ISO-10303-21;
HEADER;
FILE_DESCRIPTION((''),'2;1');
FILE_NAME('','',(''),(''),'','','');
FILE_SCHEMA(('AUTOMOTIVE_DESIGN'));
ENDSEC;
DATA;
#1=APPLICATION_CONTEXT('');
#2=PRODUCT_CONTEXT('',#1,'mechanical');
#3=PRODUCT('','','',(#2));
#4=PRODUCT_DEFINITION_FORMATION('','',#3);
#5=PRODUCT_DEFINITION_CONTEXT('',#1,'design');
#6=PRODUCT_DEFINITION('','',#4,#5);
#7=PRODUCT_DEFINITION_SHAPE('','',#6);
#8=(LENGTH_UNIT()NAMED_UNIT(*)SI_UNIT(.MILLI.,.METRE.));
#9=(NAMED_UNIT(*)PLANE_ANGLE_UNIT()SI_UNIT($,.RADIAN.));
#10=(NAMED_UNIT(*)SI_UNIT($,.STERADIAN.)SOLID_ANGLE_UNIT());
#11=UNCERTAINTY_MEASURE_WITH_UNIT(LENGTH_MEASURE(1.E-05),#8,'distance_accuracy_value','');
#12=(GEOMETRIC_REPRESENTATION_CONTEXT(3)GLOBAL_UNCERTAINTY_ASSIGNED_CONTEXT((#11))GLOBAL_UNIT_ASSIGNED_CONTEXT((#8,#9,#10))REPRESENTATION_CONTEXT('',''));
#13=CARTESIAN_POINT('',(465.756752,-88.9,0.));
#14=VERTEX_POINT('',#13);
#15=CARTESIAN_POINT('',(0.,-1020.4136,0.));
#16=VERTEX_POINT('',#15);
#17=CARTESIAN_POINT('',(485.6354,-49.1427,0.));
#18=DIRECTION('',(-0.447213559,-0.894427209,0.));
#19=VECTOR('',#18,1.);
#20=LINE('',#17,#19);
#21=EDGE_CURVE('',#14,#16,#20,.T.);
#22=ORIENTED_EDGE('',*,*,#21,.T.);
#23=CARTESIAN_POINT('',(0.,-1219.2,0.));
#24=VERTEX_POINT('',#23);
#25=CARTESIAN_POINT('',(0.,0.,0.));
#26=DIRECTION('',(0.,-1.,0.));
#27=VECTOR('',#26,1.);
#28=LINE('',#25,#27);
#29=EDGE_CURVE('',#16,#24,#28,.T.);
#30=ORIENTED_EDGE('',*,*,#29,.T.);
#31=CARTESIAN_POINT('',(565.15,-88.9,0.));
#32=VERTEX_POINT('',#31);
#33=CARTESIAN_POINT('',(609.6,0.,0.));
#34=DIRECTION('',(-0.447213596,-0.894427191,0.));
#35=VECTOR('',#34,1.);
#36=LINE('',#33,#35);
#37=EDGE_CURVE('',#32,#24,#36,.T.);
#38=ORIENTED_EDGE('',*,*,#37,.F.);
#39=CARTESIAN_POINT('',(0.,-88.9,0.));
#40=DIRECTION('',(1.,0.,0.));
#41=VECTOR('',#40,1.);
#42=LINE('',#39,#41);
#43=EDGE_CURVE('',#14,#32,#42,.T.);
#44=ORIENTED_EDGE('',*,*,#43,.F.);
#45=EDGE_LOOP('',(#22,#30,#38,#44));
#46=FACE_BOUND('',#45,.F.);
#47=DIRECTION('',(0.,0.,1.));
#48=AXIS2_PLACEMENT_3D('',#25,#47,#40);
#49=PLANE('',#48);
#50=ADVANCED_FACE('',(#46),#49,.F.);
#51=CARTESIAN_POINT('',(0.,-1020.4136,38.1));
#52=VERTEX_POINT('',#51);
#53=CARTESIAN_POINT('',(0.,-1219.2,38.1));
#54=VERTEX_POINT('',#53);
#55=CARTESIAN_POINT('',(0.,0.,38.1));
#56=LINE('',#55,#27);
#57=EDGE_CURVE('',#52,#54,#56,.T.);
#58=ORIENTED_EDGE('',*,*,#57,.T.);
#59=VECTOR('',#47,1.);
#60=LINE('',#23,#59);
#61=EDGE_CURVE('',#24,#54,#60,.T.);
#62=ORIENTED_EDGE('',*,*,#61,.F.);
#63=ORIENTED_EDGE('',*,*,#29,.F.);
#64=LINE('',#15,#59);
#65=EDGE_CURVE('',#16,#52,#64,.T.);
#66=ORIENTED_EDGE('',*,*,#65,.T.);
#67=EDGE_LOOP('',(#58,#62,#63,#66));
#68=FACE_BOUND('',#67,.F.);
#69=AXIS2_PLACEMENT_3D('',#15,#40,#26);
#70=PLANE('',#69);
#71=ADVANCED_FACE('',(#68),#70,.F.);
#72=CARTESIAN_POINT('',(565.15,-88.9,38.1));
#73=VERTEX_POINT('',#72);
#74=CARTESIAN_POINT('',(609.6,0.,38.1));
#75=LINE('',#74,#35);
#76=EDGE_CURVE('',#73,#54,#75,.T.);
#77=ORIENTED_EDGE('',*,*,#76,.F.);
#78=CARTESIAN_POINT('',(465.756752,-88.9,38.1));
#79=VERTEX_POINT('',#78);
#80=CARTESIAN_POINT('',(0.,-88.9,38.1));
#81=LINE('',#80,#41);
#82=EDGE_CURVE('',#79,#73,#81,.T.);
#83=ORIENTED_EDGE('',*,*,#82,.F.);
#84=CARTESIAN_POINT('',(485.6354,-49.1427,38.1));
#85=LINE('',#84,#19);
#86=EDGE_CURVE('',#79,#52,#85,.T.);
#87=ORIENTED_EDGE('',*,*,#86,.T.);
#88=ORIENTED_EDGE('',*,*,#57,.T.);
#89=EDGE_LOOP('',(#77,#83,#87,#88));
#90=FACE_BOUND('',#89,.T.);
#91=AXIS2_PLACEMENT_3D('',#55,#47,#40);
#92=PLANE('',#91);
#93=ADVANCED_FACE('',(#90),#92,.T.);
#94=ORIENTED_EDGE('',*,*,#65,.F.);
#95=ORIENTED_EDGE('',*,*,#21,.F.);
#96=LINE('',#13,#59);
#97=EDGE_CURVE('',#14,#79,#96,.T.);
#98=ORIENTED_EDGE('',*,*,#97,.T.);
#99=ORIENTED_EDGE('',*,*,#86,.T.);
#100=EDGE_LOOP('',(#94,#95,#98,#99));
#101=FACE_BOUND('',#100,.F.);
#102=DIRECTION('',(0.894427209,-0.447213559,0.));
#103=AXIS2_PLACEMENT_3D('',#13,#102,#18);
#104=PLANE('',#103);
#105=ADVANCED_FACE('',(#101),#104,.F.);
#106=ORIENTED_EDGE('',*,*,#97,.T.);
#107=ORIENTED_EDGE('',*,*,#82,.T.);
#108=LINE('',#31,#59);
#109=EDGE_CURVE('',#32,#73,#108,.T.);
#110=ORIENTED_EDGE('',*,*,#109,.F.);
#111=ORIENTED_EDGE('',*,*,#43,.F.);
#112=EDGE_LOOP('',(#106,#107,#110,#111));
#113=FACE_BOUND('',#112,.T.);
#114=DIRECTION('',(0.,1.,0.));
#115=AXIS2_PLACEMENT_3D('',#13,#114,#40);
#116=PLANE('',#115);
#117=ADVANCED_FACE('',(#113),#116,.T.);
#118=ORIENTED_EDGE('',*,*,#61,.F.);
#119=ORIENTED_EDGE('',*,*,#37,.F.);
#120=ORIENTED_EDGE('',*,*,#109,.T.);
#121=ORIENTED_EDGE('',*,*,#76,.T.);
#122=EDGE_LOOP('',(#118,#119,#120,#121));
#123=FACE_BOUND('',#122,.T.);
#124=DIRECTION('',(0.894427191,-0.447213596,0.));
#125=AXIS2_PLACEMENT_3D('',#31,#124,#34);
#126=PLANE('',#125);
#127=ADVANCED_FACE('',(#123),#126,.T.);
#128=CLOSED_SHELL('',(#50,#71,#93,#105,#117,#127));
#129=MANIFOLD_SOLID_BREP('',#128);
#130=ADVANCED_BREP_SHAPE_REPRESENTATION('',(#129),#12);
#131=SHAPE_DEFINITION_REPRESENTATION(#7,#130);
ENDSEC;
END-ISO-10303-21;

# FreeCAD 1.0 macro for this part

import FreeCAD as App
import Part
import Sketcher

V = App.Vector
Q = App.Units.Quantity

doc = App.newDocument("Part")
body = doc.addObject("PartDesign::Body", "Body")

# Sketch on XY plane
sketch1 = doc.addObject("Sketcher::SketchObject", "Sketch")
body.addObject(sketch1)
sketch1.AttachmentSupport = (doc.XY_Plane, [""])
sketch1.MapMode = "FlatFace"
sketch1.addGeometry([
    Part.LineSegment(V(466, -89, 0), V(0, -1020, 0)),
    Part.LineSegment(V(0, -1020, 0), V(0, -1219, 0)),
    Part.LineSegment(V(0, -1219, 0), V(565, -89, 0)),
    Part.LineSegment(V(565, -89, 0), V(466, -89, 0)),
], False)
sketch1.addConstraint([
    Sketcher.Constraint("Coincident", 0, 2, 1, 1),
    Sketcher.Constraint("Coincident", 1, 2, 2, 1),
    Sketcher.Constraint("Coincident", 2, 2, 3, 1),
    Sketcher.Constraint("Coincident", 3, 2, 0, 1),
    Sketcher.Constraint("Vertical", 1),
    Sketcher.Constraint("Horizontal", 3),
    Sketcher.Constraint("PointOnObject", 0, 2, -2),
    Sketcher.Constraint("Parallel", 0, 2),
    Sketcher.Constraint("DistanceY", 1, 2, -1, 1, Q("48 in")),
    Sketcher.Constraint("DistanceY", 2, 2, -1, 1, Q("3.5 in")),
    Sketcher.Constraint("DistanceX", -1, 1, 2, 2, Q("22.25 in")),
    Sketcher.Constraint("DistanceX", 3, 2, 3, 1, 99.3932),
])
pad1 = doc.addObject("PartDesign::Pad", "Pad")
body.addObject(pad1)
pad1.Profile = sketch1
pad1.Length = Q("1.5 in")

doc.recompute()
